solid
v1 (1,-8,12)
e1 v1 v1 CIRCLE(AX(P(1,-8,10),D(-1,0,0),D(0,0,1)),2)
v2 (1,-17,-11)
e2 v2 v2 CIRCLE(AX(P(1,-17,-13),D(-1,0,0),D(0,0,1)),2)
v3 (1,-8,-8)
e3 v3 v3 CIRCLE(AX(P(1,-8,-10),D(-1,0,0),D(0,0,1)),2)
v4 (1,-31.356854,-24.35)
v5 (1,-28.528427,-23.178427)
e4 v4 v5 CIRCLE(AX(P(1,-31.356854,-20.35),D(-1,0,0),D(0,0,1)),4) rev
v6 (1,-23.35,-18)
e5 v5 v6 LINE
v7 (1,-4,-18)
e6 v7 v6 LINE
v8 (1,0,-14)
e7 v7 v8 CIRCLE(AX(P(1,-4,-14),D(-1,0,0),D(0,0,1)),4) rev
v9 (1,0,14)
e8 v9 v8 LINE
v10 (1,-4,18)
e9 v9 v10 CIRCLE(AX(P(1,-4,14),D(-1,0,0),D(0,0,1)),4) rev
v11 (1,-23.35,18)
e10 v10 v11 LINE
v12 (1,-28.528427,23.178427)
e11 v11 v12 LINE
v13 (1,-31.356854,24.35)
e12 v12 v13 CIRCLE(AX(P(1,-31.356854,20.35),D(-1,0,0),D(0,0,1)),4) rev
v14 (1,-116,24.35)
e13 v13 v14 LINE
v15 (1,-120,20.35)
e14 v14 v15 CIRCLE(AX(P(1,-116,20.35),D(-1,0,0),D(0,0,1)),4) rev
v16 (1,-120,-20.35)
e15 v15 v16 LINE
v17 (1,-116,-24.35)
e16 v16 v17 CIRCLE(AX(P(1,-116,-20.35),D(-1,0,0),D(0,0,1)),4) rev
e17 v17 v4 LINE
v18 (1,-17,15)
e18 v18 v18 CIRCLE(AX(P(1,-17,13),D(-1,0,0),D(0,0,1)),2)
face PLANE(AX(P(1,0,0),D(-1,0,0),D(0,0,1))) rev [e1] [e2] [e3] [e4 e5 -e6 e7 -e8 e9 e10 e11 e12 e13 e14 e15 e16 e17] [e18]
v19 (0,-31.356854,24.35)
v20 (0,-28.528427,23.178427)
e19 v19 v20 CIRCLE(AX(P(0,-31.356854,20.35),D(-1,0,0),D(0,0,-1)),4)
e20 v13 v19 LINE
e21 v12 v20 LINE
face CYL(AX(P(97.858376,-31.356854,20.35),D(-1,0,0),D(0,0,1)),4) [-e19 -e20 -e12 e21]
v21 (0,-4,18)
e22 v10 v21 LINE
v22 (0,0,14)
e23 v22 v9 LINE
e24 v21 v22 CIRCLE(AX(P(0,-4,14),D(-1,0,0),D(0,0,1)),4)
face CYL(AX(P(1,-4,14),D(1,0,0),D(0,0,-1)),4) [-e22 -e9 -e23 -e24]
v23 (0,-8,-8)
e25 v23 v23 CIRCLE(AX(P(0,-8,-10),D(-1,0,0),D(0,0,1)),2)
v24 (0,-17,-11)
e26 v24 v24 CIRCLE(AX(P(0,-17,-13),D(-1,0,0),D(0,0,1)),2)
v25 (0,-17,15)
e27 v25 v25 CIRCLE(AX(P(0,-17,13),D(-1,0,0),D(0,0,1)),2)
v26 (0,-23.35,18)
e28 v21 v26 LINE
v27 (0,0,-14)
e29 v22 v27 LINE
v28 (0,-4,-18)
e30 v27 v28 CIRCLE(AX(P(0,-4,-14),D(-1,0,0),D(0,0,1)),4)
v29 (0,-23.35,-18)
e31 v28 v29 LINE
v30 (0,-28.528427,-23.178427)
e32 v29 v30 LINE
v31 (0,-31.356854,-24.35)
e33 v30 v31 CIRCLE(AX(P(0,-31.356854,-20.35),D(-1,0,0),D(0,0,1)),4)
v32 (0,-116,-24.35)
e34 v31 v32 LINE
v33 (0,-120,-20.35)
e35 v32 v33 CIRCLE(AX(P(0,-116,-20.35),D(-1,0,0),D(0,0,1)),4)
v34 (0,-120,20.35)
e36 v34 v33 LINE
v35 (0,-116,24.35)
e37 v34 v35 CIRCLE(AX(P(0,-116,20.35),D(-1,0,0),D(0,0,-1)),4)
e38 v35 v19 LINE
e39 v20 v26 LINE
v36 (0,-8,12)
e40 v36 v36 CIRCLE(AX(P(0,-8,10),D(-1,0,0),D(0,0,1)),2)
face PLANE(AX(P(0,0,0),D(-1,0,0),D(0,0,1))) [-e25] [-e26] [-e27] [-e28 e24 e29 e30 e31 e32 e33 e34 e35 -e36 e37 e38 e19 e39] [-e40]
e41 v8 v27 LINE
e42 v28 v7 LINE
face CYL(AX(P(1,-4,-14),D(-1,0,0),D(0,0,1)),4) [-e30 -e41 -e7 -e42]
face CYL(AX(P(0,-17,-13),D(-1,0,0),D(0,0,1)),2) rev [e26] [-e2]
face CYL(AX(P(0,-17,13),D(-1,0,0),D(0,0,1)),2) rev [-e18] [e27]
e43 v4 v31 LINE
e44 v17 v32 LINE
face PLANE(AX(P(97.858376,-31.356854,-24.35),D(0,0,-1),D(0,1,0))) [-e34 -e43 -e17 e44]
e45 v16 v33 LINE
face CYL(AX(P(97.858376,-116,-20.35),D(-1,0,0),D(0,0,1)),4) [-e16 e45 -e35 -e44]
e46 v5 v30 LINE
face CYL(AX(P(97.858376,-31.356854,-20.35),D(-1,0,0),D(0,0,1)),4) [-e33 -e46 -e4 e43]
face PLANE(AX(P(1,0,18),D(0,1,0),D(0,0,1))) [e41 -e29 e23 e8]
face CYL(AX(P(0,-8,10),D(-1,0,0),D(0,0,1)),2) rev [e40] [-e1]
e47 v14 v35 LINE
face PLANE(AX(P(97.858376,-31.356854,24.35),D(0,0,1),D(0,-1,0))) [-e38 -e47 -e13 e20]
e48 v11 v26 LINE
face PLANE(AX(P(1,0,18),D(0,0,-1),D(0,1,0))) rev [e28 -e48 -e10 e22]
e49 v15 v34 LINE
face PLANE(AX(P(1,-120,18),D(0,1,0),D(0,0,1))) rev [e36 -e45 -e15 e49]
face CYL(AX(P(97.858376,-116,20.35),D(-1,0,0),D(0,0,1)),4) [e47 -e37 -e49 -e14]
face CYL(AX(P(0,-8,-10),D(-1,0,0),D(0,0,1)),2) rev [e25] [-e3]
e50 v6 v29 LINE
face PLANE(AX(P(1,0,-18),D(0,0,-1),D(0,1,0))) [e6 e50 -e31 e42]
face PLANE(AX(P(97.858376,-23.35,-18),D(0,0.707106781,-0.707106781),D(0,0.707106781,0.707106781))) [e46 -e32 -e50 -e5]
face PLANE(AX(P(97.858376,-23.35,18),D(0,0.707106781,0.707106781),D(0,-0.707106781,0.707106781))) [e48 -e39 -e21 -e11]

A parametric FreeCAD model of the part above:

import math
import FreeCAD as App
import Part
import Sketcher
Q = App.Units.Quantity


def edges_at(feature, points):
    """Names of the edges that pass closest to the given points."""
    edges = feature.Shape.Edges
    near = lambda p: min(range(len(edges)), key=lambda i: edges[i].distToShape(Part.Vertex(*p))[0])
    return sorted({f"Edge{near(p) + 1}" for p in points})

doc = App.newDocument("Part")
params = doc.addObject("Spreadsheet::Sheet", "Params")
for row, (alias, value) in enumerate([
    ("sketch1_width", "120 mm"),
    ("sketch1_height", "36 mm"),
    ("pad1_length", "1 mm"),
    ("sketch2_diameter", "4 mm"),
    ("hole_diameter", "4 mm"),
    ("sketch3_diameter", "4 mm"),
    ("hole2_diameter", "4 mm"),
    ("sketch4_radius", "4 mm"),
    ("sketch4_width", "96.65 mm"),
    ("sketch4_height", "2.35 mm"),
    ("pad2_length", "1 mm"),
    ("fillet_radius", "4 mm"),
], start=1):
    params.set(f"A{row}", alias)
    params.set(f"B{row}", "=" + value)
    params.setAlias(f"B{row}", alias)

body = doc.addObject("PartDesign::Body", "Body")

sketch1 = body.newObject("Sketcher::SketchObject", "Sketch")
sketch1.AttachmentSupport = (doc.getObject("YZ_Plane"), [""])
sketch1.MapMode = "FlatFace"
sketch1.addGeometry(Part.LineSegment(App.Vector(0, 18, 0), App.Vector(-120, 18, 0)), False)
sketch1.addGeometry(Part.LineSegment(App.Vector(-120, 18, 0), App.Vector(-120, -18, 0)), False)
sketch1.addGeometry(Part.LineSegment(App.Vector(-120, -18, 0), App.Vector(0, -18, 0)), False)
sketch1.addGeometry(Part.LineSegment(App.Vector(0, -18, 0), App.Vector(0, 18, 0)), False)
sketch1.addConstraint(Sketcher.Constraint("Coincident", 0, 2, 1, 1))
sketch1.addConstraint(Sketcher.Constraint("Coincident", 1, 2, 2, 1))
sketch1.addConstraint(Sketcher.Constraint("Coincident", 2, 2, 3, 1))
sketch1.addConstraint(Sketcher.Constraint("Coincident", 3, 2, 0, 1))
sketch1.addConstraint(Sketcher.Constraint("Horizontal", 0))
sketch1.addConstraint(Sketcher.Constraint("Vertical", 1))
sketch1.addConstraint(Sketcher.Constraint("Horizontal", 2))
sketch1.addConstraint(Sketcher.Constraint("Vertical", 3))
sketch1.addConstraint(Sketcher.Constraint("Symmetric", 2, 2, 3, 2, -1, 1))
sketch1.addConstraint(Sketcher.Constraint("DistanceX", 0, 2, 0, 1, Q("120 mm")))
sketch1.addConstraint(Sketcher.Constraint("DistanceY", 1, 2, 1, 1, Q("36 mm")))
sketch1.setExpression("Constraints[9]", "Params.sketch1_width")
sketch1.setExpression("Constraints[10]", "Params.sketch1_height")
pad1 = body.newObject("PartDesign::Pad", "Pad")
pad1.Profile = sketch1
pad1.setExpression("Length", "Params.pad1_length")

sketch2 = body.newObject("Sketcher::SketchObject", "Sketch001")
sketch2.AttachmentSupport = (doc.getObject("YZ_Plane"), [""])
sketch2.MapMode = "FlatFace"
sketch2.addGeometry(Part.Circle(App.Vector(-8, -10, 0), App.Vector(0, 0, 1), 2), False)
sketch2.addGeometry(Part.Circle(App.Vector(-8, 10, 0), App.Vector(0, 0, 1), 2), False)
sketch2.addConstraint(Sketcher.Constraint("Equal", 0, 1))
sketch2.addConstraint(Sketcher.Constraint("Symmetric", 0, 3, 1, 3, -1))
sketch2.addConstraint(Sketcher.Constraint("Diameter", 0, Q("4 mm")))
sketch2.addConstraint(Sketcher.Constraint("DistanceX", 0, 3, -1, 1, Q("8 mm")))
sketch2.addConstraint(Sketcher.Constraint("DistanceY", 0, 3, -1, 1, Q("10 mm")))
sketch2.setExpression("Constraints[2]", "Params.sketch2_diameter")
doc.recompute()
hole = body.newObject("PartDesign::Hole", "Hole")
hole.Profile = sketch2
hole.ThreadType = "None"
hole.setExpression("Diameter", "Params.hole_diameter")
hole.DepthType = "ThroughAll"
hole.Reversed = True

sketch3 = body.newObject("Sketcher::SketchObject", "Sketch002")
sketch3.AttachmentSupport = (doc.getObject("YZ_Plane"), [""])
sketch3.MapMode = "FlatFace"
sketch3.addGeometry(Part.Circle(App.Vector(-17, -13, 0), App.Vector(0, 0, 1), 2), False)
sketch3.addGeometry(Part.Circle(App.Vector(-17, 13, 0), App.Vector(0, 0, 1), 2), False)
sketch3.addConstraint(Sketcher.Constraint("Equal", 0, 1))
sketch3.addConstraint(Sketcher.Constraint("Symmetric", 0, 3, 1, 3, -1))
sketch3.addConstraint(Sketcher.Constraint("Diameter", 0, Q("4 mm")))
sketch3.addConstraint(Sketcher.Constraint("DistanceX", 0, 3, -1, 1, Q("17 mm")))
sketch3.addConstraint(Sketcher.Constraint("DistanceY", 0, 3, -1, 1, Q("13 mm")))
sketch3.setExpression("Constraints[2]", "Params.sketch3_diameter")
doc.recompute()
hole2 = body.newObject("PartDesign::Hole", "Hole001")
hole2.Profile = sketch3
hole2.ThreadType = "None"
hole2.setExpression("Diameter", "Params.hole2_diameter")
hole2.DepthType = "ThroughAll"
hole2.Reversed = True

sketch4 = body.newObject("Sketcher::SketchObject", "Sketch003")
sketch4.AttachmentSupport = (doc.getObject("YZ_Plane"), [""])
sketch4.MapMode = "FlatFace"
sketch4.addGeometry(Part.LineSegment(App.Vector(-28.5, 23.2, 0), App.Vector(-23.4, 18, 0)), False)
sketch4.addGeometry(Part.LineSegment(App.Vector(-23.4, 18, 0), App.Vector(-120, 18, 0)), False)
sketch4.addGeometry(Part.LineSegment(App.Vector(-120, 18, 0), App.Vector(-120, 20.4, 0)), False)
sketch4.addGeometry(Part.ArcOfCircle(Part.Circle(App.Vector(-116, 20.4, 0), App.Vector(0, 0, 1), 4), math.radians(90), math.radians(180)), False)
sketch4.addGeometry(Part.LineSegment(App.Vector(-116, 24.4, 0), App.Vector(-31.4, 24.4, 0)), False)
sketch4.addGeometry(Part.ArcOfCircle(Part.Circle(App.Vector(-31.4, 20.4, 0), App.Vector(0, 0, 1), 4), math.radians(45), math.radians(90)), False)
sketch4.addGeometry(Part.LineSegment(App.Vector(-23.4, -18, 0), App.Vector(-28.5, -23.2, 0)), False)
sketch4.addGeometry(Part.ArcOfCircle(Part.Circle(App.Vector(-31.4, -20.4, 0), App.Vector(0, 0, 1), 4), math.radians(-90), math.radians(-45)), False)
sketch4.addGeometry(Part.LineSegment(App.Vector(-31.4, -24.4, 0), App.Vector(-116, -24.4, 0)), False)
sketch4.addGeometry(Part.ArcOfCircle(Part.Circle(App.Vector(-116, -20.4, 0), App.Vector(0, 0, 1), 4), math.radians(180), math.radians(270)), False)
sketch4.addGeometry(Part.LineSegment(App.Vector(-120, -20.4, 0), App.Vector(-120, -18, 0)), False)
sketch4.addGeometry(Part.LineSegment(App.Vector(-120, -18, 0), App.Vector(-23.4, -18, 0)), False)
sketch4.addConstraint(Sketcher.Constraint("Coincident", 0, 2, 1, 1))
sketch4.addConstraint(Sketcher.Constraint("Coincident", 1, 2, 2, 1))
sketch4.addConstraint(Sketcher.Constraint("Tangent", 2, 2, 3, 2))
sketch4.addConstraint(Sketcher.Constraint("Tangent", 3, 1, 4, 1))
sketch4.addConstraint(Sketcher.Constraint("Tangent", 4, 2, 5, 2))
sketch4.addConstraint(Sketcher.Constraint("Tangent", 5, 1, 0, 1))
sketch4.addConstraint(Sketcher.Constraint("Tangent", 6, 2, 7, 2))
sketch4.addConstraint(Sketcher.Constraint("Tangent", 7, 1, 8, 1))
sketch4.addConstraint(Sketcher.Constraint("Tangent", 8, 2, 9, 2))
sketch4.addConstraint(Sketcher.Constraint("Tangent", 9, 1, 10, 1))
sketch4.addConstraint(Sketcher.Constraint("Coincident", 10, 2, 11, 1))
sketch4.addConstraint(Sketcher.Constraint("Coincident", 11, 2, 6, 1))
sketch4.addConstraint(Sketcher.Constraint("Horizontal", 1))
sketch4.addConstraint(Sketcher.Constraint("Vertical", 2))
sketch4.addConstraint(Sketcher.Constraint("Horizontal", 4))
sketch4.addConstraint(Sketcher.Constraint("Horizontal", 8))
sketch4.addConstraint(Sketcher.Constraint("Vertical", 10))
sketch4.addConstraint(Sketcher.Constraint("Horizontal", 11))
sketch4.addConstraint(Sketcher.Constraint("Equal", 3, 5))
sketch4.addConstraint(Sketcher.Constraint("Equal", 5, 7))
sketch4.addConstraint(Sketcher.Constraint("Equal", 7, 9))
sketch4.addConstraint(Sketcher.Constraint("Symmetric", 5, 3, 7, 3, -1))
sketch4.addConstraint(Sketcher.Constraint("Symmetric", 1, 2, 10, 2, -1))
sketch4.addConstraint(Sketcher.Constraint("Perpendicular", 0, 6))
sketch4.addConstraint(Sketcher.Constraint("Vertical", 5, 1, 6, 2))
sketch4.addConstraint(Sketcher.Constraint("Radius", 3, Q("4 mm")))
sketch4.addConstraint(Sketcher.Constraint("DistanceX", 3, 3, -1, 1, Q("116 mm")))
sketch4.addConstraint(Sketcher.Constraint("DistanceY", -1, 1, 0, 2, Q("18 mm")))
sketch4.addConstraint(Sketcher.Constraint("DistanceX", 1, 2, 1, 1, Q("96.65 mm")))
sketch4.addConstraint(Sketcher.Constraint("DistanceY", 2, 1, 2, 2, Q("2.35 mm")))
sketch4.setExpression("Constraints[25]", "Params.sketch4_radius")
sketch4.setExpression("Constraints[28]", "Params.sketch4_width")
sketch4.setExpression("Constraints[29]", "Params.sketch4_height")
pad2 = body.newObject("PartDesign::Pad", "Pad001")
pad2.Profile = sketch4
pad2.setExpression("Length", "Params.pad2_length")
doc.recompute()

fillet = body.newObject("PartDesign::Fillet", "Fillet")
fillet.Base = (pad2, edges_at(pad2, [(0.5, 0, 18), (0.5, 0, -18)]))
fillet.setExpression("Radius", "Params.fillet_radius")

doc.recompute()
